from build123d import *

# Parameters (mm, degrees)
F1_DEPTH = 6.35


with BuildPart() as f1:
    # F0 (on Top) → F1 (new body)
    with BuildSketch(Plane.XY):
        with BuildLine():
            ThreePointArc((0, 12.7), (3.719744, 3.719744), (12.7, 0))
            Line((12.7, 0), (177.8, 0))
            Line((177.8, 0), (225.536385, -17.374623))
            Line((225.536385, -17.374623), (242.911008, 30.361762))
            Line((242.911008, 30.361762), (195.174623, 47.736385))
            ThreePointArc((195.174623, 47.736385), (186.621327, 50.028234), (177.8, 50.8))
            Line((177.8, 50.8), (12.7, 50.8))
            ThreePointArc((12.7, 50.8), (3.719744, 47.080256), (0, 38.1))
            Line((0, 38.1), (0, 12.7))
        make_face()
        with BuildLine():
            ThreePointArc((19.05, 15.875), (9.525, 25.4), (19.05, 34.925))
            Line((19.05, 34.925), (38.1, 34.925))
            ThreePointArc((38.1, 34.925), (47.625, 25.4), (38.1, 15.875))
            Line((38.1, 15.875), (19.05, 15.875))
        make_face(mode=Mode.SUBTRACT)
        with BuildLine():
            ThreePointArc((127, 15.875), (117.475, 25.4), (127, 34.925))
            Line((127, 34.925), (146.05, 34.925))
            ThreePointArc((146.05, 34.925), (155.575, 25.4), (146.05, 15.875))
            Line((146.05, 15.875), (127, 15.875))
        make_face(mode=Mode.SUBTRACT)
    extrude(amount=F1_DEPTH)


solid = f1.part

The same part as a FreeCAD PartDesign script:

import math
import FreeCAD as App
import Part
import Sketcher

V = App.Vector
Q = App.Units.Quantity

doc = App.newDocument("Part")
body = doc.addObject("PartDesign::Body", "Body")

sketch1 = body.newObject("Sketcher::SketchObject", "Sketch")
sketch1.AttachmentSupport = (doc.getObject("XY_Plane"), [""])
sketch1.MapMode = "FlatFace"
sketch1.addGeometry([
    Part.ArcOfCircle(Part.Circle(V(13, 13, 0), V(0, 0, 1), 13), math.radians(-180), math.radians(-90)),
    Part.LineSegment(V(13, 0, 0), V(178, 0, 0)),
    Part.LineSegment(V(178, 0, 0), V(226, -17, 0)),
    Part.LineSegment(V(226, -17, 0), V(243, 30, 0)),
    Part.LineSegment(V(243, 30, 0), V(195, 48, 0)),
    Part.ArcOfCircle(Part.Circle(V(178, 0, 0), V(0, 0, 1), 51), math.radians(70), math.radians(90)),
    Part.LineSegment(V(178, 51, 0), V(13, 51, 0)),
    Part.ArcOfCircle(Part.Circle(V(13, 38, 0), V(0, 0, 1), 13), math.radians(90), math.radians(180)),
    Part.LineSegment(V(0, 38, 0), V(0, 13, 0)),
    Part.LineSegment(V(38, 16, 0), V(19, 16, 0)),
    Part.ArcOfCircle(Part.Circle(V(19, 25, 0), V(0, 0, 1), 10), math.radians(90), math.radians(270)),
    Part.LineSegment(V(19, 35, 0), V(38, 35, 0)),
    Part.ArcOfCircle(Part.Circle(V(38, 25, 0), V(0, 0, 1), 10), math.radians(-90), math.radians(90)),
    Part.LineSegment(V(146, 16, 0), V(127, 16, 0)),
    Part.ArcOfCircle(Part.Circle(V(127, 25, 0), V(0, 0, 1), 10), math.radians(90), math.radians(270)),
    Part.LineSegment(V(127, 35, 0), V(146, 35, 0)),
    Part.ArcOfCircle(Part.Circle(V(146, 25, 0), V(0, 0, 1), 10), math.radians(-90), math.radians(90)),
], False)
sketch1.addConstraint([
    Sketcher.Constraint("Tangent", 0, 2, 1, 1),
    Sketcher.Constraint("Coincident", 1, 2, 2, 1),
    Sketcher.Constraint("Coincident", 2, 2, 3, 1),
    Sketcher.Constraint("Coincident", 3, 2, 4, 1),
    Sketcher.Constraint("Tangent", 4, 2, 5, 1),
    Sketcher.Constraint("Tangent", 5, 2, 6, 1),
    Sketcher.Constraint("Tangent", 6, 2, 7, 1),
    Sketcher.Constraint("Tangent", 7, 2, 8, 1),
    Sketcher.Constraint("Tangent", 8, 2, 0, 1),
    Sketcher.Constraint("Tangent", 9, 2, 10, 2),
    Sketcher.Constraint("Tangent", 10, 1, 11, 1),
    Sketcher.Constraint("Tangent", 11, 2, 12, 2),
    Sketcher.Constraint("Tangent", 12, 1, 9, 1),
    Sketcher.Constraint("Tangent", 13, 2, 14, 2),
    Sketcher.Constraint("Tangent", 14, 1, 15, 1),
    Sketcher.Constraint("Tangent", 15, 2, 16, 2),
    Sketcher.Constraint("Tangent", 16, 1, 13, 1),
    Sketcher.Constraint("Horizontal", 1),
    Sketcher.Constraint("Horizontal", 6),
    Sketcher.Constraint("Vertical", 8),
    Sketcher.Constraint("Horizontal", 9),
    Sketcher.Constraint("Horizontal", 11),
    Sketcher.Constraint("Horizontal", 13),
    Sketcher.Constraint("Horizontal", 15),
    Sketcher.Constraint("Equal", 0, 7),
    Sketcher.Constraint("Equal", 12, 14),
    Sketcher.Constraint("PointOnObject", 0, 2, -1),
    Sketcher.Constraint("PointOnObject", 7, 2, -2),
    Sketcher.Constraint("Perpendicular", 2, 3),
    Sketcher.Constraint("Perpendicular", 3, 4),
    Sketcher.Constraint("Horizontal", 12, 3, 14, 3),
    Sketcher.Constraint("Vertical", 5, 3, 1, 2),
    Sketcher.Constraint("Equal", 11, 13),
    Sketcher.Constraint("Equal", 2, 3),
    Sketcher.Constraint("Equal", 3, 4),
    Sketcher.Constraint("Radius", 0, Q("0.5 in")),
    Sketcher.Constraint("DistanceY", 8, 2, 8, 1, Q("1 in")),
    Sketcher.Constraint("DistanceX", 1, 1, 1, 2, Q("6.5 in")),
    Sketcher.Constraint("DistanceY", -1, 1, 10, 3, Q("1 in")),
    Sketcher.Constraint("DistanceX", -1, 1, 14, 3, Q("5 in")),
    Sketcher.Constraint("Angle", 2, Q("-20 deg")),
    Sketcher.Constraint("Radius", 10, Q("0.375 in")),
    Sketcher.Constraint("DistanceX", 0, 3, 12, 3, Q("1 in")),
    Sketcher.Constraint("DistanceX", 10, 3, 16, 3, Q("5 in")),
])
pad1 = body.newObject("PartDesign::Pad", "Pad")
pad1.Profile = sketch1
pad1.Length = Q("0.25 in")

doc.recompute()
